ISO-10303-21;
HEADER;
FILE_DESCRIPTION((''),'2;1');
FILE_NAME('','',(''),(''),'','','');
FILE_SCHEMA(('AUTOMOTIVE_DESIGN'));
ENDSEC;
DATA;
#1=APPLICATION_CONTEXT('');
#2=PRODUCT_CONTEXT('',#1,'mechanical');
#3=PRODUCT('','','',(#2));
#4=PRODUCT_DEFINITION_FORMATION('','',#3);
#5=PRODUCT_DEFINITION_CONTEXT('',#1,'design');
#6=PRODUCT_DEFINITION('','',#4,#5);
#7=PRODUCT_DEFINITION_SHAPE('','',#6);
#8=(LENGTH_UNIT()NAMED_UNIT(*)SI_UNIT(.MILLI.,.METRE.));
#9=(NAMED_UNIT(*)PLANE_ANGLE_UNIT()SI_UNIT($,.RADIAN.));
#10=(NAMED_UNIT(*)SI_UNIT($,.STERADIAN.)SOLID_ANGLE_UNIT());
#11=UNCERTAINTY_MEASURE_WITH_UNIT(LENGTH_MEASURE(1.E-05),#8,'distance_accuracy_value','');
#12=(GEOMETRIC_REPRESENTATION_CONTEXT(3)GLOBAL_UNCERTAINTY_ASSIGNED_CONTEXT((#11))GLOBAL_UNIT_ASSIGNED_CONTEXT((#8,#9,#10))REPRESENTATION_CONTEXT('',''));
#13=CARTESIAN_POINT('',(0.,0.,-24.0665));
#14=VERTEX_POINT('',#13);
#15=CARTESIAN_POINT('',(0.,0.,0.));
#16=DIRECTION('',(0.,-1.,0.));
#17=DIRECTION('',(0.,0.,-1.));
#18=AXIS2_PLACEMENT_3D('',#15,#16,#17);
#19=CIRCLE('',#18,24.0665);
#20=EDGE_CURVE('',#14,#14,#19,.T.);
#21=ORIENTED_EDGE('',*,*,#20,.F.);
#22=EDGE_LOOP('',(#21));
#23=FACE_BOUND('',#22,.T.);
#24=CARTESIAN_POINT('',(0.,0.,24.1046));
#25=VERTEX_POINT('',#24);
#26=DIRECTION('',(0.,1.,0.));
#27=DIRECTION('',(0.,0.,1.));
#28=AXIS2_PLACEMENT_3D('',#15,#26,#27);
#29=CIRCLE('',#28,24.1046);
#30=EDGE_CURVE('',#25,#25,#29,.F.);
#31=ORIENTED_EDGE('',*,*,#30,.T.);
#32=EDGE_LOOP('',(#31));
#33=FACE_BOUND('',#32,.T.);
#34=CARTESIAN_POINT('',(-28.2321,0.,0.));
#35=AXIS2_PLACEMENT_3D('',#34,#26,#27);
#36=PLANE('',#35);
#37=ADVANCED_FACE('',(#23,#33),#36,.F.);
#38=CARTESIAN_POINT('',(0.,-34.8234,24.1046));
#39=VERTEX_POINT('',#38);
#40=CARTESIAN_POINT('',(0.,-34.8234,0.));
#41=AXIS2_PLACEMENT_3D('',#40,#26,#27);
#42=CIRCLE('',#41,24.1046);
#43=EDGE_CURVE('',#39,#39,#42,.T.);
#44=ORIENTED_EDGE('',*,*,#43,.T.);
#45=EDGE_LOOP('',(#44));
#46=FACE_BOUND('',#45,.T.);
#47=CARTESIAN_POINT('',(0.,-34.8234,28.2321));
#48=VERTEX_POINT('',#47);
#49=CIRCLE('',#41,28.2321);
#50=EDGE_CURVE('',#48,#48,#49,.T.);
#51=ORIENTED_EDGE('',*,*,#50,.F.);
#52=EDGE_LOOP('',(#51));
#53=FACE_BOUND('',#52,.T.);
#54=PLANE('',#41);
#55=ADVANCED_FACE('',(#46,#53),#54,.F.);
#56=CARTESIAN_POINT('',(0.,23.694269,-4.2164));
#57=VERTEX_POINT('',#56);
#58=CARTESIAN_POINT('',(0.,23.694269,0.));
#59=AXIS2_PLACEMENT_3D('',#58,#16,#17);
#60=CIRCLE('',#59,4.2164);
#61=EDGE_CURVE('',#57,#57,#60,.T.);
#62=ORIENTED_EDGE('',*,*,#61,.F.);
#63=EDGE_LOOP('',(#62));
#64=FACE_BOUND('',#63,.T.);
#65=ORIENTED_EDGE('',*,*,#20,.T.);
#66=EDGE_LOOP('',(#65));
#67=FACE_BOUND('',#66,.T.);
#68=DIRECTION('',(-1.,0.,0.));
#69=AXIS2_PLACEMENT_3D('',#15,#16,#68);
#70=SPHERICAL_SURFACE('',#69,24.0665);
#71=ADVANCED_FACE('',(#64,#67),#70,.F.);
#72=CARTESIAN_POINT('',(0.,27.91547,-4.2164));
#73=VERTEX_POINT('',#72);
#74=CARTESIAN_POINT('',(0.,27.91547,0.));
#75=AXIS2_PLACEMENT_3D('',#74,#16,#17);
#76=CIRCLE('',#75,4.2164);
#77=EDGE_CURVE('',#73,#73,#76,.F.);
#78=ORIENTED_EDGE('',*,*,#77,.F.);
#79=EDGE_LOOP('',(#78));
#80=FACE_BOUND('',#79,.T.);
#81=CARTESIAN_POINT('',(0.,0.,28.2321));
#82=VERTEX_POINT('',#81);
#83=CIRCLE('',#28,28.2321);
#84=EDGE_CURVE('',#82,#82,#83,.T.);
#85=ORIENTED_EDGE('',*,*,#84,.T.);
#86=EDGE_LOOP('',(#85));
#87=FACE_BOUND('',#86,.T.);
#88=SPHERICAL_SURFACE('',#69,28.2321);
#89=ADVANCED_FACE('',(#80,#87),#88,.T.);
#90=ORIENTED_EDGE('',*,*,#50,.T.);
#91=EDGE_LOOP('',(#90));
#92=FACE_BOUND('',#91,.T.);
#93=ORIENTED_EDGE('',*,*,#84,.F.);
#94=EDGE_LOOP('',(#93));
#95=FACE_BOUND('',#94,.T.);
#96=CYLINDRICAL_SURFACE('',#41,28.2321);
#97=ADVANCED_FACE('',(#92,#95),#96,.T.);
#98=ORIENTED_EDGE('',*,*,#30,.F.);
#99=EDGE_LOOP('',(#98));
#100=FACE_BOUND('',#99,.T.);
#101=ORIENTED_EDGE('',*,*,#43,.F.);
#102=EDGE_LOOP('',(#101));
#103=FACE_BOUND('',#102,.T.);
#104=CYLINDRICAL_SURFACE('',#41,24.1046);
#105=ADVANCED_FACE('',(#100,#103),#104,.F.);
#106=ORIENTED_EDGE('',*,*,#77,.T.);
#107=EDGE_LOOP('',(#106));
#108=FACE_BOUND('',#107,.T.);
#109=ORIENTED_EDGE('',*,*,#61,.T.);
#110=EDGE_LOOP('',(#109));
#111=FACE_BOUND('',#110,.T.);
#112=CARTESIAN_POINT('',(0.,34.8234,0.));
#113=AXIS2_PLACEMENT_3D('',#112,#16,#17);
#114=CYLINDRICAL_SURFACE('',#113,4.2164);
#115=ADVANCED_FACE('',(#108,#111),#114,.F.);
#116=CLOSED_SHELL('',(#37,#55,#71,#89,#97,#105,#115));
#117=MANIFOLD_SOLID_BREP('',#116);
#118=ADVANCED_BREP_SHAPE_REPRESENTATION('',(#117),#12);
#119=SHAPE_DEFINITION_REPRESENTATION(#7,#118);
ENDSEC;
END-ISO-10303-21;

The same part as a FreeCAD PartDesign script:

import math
import FreeCAD as App
import Part
import Sketcher
from FreeCAD import Vector
Q = App.Units.Quantity

doc = App.newDocument("Part")
body = doc.addObject("PartDesign::Body", "Body")

# Sketch on XZ plane
sketch1 = body.newObject("Sketcher::SketchObject", "Sketch")
sketch1.AttachmentSupport = (doc.getObject("XZ_Plane"), [""])
sketch1.MapMode = "FlatFace"
sketch1.addGeometry(Part.Circle(Vector(0, 0, 0), Vector(0, 0, 1), 28.2321), False)
sketch1.addGeometry(Part.Circle(Vector(0, 0, 0), Vector(0, 0, 1), 24.1046), False)
sketch1.addConstraint(Sketcher.Constraint("Coincident", 0, 3, -1, 1))
sketch1.addConstraint(Sketcher.Constraint("Coincident", 1, 3, -1, 1))
sketch1.addConstraint(Sketcher.Constraint("Diameter", 0, Q("2.223 in")))
sketch1.addConstraint(Sketcher.Constraint("Diameter", 1, Q("1.898 in")))
pad1 = body.newObject("PartDesign::Pad", "Pad")
pad1.Profile = sketch1
pad1.Length = Q("1.371 in")

# Sketch on XY plane
sketch2 = body.newObject("Sketcher::SketchObject", "Sketch001")
sketch2.AttachmentSupport = (doc.getObject("XY_Plane"), [""])
sketch2.MapMode = "FlatFace"
sketch2.addGeometry(Part.LineSegment(Vector(0, 24.0665, 0), Vector(0, 28.2321, 0)), False)
sketch2.addGeometry(Part.ArcOfCircle(Part.Circle(Vector(0, 0, 0), Vector(0, 0, 1), 28.2321), math.radians(90), math.radians(180)), False)
sketch2.addGeometry(Part.LineSegment(Vector(-28.2321, 0, 0), Vector(-24.0665, 0, 0)), False)
sketch2.addGeometry(Part.ArcOfCircle(Part.Circle(Vector(0, 0, 0), Vector(0, 0, 1), 24.0665), math.radians(90), math.radians(180)), False)
sketch2.addConstraint(Sketcher.Constraint("Coincident", 0, 2, 1, 1))
sketch2.addConstraint(Sketcher.Constraint("Coincident", 1, 2, 2, 1))
sketch2.addConstraint(Sketcher.Constraint("Coincident", 2, 2, 3, 2))
sketch2.addConstraint(Sketcher.Constraint("Coincident", 3, 1, 0, 1))
sketch2.addConstraint(Sketcher.Constraint("Vertical", 0))
sketch2.addConstraint(Sketcher.Constraint("Horizontal", 2))
sketch2.addConstraint(Sketcher.Constraint("Coincident", 1, 3, -1, 1))
sketch2.addConstraint(Sketcher.Constraint("Coincident", 3, 3, -1, 1))
sketch2.addConstraint(Sketcher.Constraint("PointOnObject", 0, 2, -2))
sketch2.addConstraint(Sketcher.Constraint("PointOnObject", 1, 2, -1))
sketch2.addConstraint(Sketcher.Constraint("Radius", 1, Q("1.1115 in")))
sketch2.addConstraint(Sketcher.Constraint("Radius", 3, Q("0.9475 in")))
revolution = body.newObject("PartDesign::Revolution", "Revolution")
revolution.Profile = sketch2
revolution.ReferenceAxis = (sketch2, ["V_Axis"])
revolution.Angle = 360

# Sketch on XZ plane
sketch3 = body.newObject("Sketcher::SketchObject", "Sketch002")
sketch3.AttachmentSupport = (doc.getObject("XZ_Plane"), [""])
sketch3.MapMode = "FlatFace"
sketch3.addGeometry(Part.Circle(Vector(0, 0, 0), Vector(0, 0, 1), 4.2164), False)
sketch3.addConstraint(Sketcher.Constraint("Coincident", 0, 3, -1, 1))
sketch3.addConstraint(Sketcher.Constraint("Diameter", 0, Q("0.332 in")))
pocket1 = body.newObject("PartDesign::Pocket", "Pocket")
pocket1.Profile = sketch3
pocket1.Length = Q("1.371 in")

doc.recompute()
